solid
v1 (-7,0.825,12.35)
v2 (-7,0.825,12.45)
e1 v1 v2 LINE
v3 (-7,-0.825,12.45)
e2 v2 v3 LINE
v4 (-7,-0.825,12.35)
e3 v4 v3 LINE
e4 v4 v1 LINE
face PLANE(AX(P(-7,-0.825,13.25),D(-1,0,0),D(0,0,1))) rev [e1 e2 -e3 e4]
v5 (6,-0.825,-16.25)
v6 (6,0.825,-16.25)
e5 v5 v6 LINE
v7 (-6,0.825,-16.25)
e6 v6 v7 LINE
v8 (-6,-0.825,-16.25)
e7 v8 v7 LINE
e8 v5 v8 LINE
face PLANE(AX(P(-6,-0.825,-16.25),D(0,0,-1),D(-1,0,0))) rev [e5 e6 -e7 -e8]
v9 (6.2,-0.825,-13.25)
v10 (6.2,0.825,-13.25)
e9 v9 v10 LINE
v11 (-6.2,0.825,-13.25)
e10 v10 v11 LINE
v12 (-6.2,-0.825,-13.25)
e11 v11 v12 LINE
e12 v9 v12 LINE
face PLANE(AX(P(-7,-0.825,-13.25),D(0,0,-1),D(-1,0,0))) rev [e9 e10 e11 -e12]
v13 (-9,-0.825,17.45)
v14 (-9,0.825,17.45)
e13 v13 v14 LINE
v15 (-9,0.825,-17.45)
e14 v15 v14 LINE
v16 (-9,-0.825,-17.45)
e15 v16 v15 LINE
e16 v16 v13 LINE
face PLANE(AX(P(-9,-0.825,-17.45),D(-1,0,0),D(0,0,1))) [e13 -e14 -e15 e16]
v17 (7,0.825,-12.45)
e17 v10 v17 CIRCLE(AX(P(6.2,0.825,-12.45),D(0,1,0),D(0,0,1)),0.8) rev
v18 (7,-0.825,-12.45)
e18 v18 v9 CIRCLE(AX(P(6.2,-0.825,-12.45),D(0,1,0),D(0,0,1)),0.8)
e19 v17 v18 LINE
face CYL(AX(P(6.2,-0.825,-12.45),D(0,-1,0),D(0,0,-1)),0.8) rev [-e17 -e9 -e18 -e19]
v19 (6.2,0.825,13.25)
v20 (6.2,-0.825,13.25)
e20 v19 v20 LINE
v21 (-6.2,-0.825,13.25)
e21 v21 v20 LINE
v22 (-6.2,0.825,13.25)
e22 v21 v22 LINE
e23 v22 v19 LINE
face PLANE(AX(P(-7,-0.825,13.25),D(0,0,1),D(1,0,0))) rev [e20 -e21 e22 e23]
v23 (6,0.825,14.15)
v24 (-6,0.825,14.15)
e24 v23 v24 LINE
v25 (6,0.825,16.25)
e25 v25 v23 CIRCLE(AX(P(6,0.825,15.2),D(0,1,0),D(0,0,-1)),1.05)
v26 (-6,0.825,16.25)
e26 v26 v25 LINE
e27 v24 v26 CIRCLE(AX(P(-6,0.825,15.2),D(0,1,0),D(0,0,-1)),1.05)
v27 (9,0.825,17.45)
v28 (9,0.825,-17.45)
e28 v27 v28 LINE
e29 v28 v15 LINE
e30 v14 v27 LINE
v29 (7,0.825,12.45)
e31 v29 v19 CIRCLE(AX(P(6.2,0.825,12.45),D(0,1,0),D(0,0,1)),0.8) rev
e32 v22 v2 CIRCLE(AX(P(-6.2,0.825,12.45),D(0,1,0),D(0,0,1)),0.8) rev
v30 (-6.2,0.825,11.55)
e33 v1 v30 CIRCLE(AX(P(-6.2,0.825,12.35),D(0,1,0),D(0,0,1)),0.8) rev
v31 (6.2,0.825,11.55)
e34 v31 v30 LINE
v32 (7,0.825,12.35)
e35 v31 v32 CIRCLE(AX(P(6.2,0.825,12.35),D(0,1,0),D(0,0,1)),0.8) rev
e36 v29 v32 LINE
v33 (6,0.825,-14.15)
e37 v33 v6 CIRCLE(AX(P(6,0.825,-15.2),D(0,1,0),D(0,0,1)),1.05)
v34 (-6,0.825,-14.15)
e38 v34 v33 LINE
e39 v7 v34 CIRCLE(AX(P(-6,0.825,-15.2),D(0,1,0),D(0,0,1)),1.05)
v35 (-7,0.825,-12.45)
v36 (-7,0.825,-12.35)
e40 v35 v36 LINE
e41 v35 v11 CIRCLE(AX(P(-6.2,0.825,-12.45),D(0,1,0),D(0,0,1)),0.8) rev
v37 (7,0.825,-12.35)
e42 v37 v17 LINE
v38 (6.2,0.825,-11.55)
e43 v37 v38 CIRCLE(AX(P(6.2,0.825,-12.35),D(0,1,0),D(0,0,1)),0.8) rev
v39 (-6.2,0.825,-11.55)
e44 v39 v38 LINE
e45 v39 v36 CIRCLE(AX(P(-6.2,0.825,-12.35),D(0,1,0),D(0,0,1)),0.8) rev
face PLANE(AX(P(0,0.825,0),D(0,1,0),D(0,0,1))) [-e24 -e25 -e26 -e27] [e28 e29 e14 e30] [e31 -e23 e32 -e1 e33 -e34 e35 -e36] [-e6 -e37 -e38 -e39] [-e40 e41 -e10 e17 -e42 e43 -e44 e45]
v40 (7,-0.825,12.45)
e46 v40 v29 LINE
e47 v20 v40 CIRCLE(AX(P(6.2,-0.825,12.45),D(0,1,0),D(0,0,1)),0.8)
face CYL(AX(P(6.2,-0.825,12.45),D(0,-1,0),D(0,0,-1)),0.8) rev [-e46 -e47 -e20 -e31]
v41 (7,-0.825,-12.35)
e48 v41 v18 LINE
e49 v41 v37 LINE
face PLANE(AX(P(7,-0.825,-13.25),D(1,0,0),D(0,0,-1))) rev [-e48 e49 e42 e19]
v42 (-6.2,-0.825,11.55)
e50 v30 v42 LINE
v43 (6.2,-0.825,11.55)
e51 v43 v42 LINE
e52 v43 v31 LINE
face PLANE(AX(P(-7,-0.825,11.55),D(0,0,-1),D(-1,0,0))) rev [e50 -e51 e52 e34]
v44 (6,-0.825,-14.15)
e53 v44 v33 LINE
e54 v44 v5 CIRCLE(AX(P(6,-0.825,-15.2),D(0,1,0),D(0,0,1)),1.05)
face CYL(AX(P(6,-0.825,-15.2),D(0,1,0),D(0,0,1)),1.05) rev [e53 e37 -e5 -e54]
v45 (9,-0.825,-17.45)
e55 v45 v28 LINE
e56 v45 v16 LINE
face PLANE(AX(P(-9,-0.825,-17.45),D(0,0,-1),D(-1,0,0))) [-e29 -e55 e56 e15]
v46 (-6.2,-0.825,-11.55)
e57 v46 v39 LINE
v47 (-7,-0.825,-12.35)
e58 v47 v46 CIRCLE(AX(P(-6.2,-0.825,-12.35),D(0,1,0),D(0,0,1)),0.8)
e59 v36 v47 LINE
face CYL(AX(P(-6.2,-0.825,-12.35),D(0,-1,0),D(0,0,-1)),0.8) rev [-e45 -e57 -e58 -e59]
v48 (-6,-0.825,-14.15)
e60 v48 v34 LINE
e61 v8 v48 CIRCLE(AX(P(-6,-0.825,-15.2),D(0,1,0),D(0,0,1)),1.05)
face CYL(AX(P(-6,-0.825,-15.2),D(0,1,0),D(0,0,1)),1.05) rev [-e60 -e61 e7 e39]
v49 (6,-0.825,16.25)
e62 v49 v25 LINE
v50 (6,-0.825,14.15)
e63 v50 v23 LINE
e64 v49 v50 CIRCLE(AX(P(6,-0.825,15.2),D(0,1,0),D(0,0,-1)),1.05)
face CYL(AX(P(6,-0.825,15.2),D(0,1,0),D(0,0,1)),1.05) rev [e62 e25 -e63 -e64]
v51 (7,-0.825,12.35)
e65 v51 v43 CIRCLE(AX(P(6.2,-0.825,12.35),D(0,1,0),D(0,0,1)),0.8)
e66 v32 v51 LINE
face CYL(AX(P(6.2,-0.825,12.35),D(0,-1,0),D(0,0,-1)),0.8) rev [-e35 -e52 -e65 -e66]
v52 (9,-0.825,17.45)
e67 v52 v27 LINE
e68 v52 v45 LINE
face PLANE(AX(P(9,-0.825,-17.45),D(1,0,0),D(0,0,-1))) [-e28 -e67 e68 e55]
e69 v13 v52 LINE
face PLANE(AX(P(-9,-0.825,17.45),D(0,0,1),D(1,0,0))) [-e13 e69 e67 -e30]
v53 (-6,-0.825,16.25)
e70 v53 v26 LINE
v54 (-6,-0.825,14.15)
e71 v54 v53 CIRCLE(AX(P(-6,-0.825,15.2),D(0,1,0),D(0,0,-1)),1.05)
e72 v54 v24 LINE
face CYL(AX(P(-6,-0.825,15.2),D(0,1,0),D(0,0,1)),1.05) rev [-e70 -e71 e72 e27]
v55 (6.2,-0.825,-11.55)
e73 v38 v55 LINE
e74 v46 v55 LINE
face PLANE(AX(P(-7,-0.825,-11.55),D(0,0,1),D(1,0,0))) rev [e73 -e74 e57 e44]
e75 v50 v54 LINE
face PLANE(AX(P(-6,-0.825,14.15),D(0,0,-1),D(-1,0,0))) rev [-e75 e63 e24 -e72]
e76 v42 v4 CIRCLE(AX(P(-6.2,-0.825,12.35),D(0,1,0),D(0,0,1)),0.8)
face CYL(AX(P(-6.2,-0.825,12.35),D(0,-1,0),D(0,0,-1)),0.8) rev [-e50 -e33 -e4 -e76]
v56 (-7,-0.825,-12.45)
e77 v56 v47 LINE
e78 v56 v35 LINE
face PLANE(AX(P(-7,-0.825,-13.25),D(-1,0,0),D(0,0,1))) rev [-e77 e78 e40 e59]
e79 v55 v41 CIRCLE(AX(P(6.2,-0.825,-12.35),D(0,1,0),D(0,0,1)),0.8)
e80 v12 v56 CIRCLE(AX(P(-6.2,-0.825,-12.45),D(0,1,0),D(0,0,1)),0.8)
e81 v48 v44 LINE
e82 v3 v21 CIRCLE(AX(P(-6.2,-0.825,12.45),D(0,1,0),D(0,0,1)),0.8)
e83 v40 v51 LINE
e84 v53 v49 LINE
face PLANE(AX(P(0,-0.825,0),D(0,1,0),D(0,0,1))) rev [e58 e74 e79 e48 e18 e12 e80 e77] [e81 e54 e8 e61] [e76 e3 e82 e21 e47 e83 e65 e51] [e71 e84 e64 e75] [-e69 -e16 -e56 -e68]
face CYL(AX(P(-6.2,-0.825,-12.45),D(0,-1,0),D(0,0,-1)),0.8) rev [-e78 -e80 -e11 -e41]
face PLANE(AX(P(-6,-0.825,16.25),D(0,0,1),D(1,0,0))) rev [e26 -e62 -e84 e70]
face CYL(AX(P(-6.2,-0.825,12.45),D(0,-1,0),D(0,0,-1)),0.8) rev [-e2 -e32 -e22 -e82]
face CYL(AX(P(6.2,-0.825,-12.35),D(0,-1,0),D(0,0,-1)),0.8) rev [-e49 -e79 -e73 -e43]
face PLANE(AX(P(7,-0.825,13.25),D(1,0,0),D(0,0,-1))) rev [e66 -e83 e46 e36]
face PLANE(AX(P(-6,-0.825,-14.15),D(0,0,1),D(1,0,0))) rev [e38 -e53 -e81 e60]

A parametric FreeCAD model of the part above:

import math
import FreeCAD as App
import Part
import Sketcher
Q = App.Units.Quantity


def edges_at(feature, points):
    """Names of the edges that pass closest to the given points."""
    edges = feature.Shape.Edges
    near = lambda p: min(range(len(edges)), key=lambda i: edges[i].distToShape(Part.Vertex(*p))[0])
    return sorted({f"Edge{near(p) + 1}" for p in points})


def add_polygon(sketch, points):
    """Adds a closed chain of lines whose ends are joined by coincident constraints."""
    first, n = sketch.GeometryCount, len(points)
    for a, b in zip(points, points[1:] + points[:1]):
        sketch.addGeometry(Part.LineSegment(App.Vector(*a, 0), App.Vector(*b, 0)), False)
    for i in range(n):
        sketch.addConstraint(Sketcher.Constraint("Coincident", first + i, 2, first + (i + 1) % n, 1))

doc = App.newDocument("Part")
params = doc.addObject("Spreadsheet::Sheet", "Params")
for row, (alias, value) in enumerate([
    ("sketch1_width", "18 mm"),
    ("sketch1_width2", "12 mm"),
    ("sketch1_width3", "14 mm"),
    ("sketch1_radius", "1.05 mm"),
    ("sketch1_height", "34.9 mm"),
    ("pad1_length", "1.65 mm"),
    ("fillet_radius", "0.8 mm"),
], start=1):
    params.set(f"A{row}", alias)
    params.set(f"B{row}", "=" + value)
    params.setAlias(f"B{row}", alias)

body = doc.addObject("PartDesign::Body", "Body")

sketch1 = body.newObject("Sketcher::SketchObject", "Sketch")
sketch1.AttachmentSupport = (doc.getObject("XZ_Plane"), [""])
sketch1.MapMode = "FlatFace"
add_polygon(sketch1, [(-9, -17.4), (-9, 17.4), (9, 17.4), (9, -17.4)])
sketch1.addGeometry(Part.LineSegment(App.Vector(6, 16.2, 0), App.Vector(-6, 16.2, 0)), False)
sketch1.addGeometry(Part.ArcOfCircle(Part.Circle(App.Vector(-6, 15.2, 0), App.Vector(0, 0, 1), 1.1), math.radians(90), math.radians(270)), False)
sketch1.addGeometry(Part.LineSegment(App.Vector(-6, 14.2, 0), App.Vector(6, 14.2, 0)), False)
sketch1.addGeometry(Part.ArcOfCircle(Part.Circle(App.Vector(6, 15.2, 0), App.Vector(0, 0, 1), 1.1), math.radians(-90), math.radians(90)), False)
add_polygon(sketch1, [(7, 13.2), (-7, 13.2), (-7, 11.6), (7, 11.6)])
add_polygon(sketch1, [(7, -11.6), (-7, -11.6), (-7, -13.2), (7, -13.2)])
sketch1.addGeometry(Part.ArcOfCircle(Part.Circle(App.Vector(-6, -15.2, 0), App.Vector(0, 0, 1), 1.1), math.radians(90), math.radians(270)), False)
sketch1.addGeometry(Part.LineSegment(App.Vector(-6, -16.2, 0), App.Vector(6, -16.2, 0)), False)
sketch1.addGeometry(Part.ArcOfCircle(Part.Circle(App.Vector(6, -15.2, 0), App.Vector(0, 0, 1), 1.1), math.radians(-90), math.radians(90)), False)
sketch1.addGeometry(Part.LineSegment(App.Vector(6, -14.2, 0), App.Vector(-6, -14.2, 0)), False)
sketch1.addConstraint([
    Sketcher.Constraint("Tangent", 4, 2, 5, 1),
    Sketcher.Constraint("Tangent", 5, 2, 6, 1),
    Sketcher.Constraint("Tangent", 6, 2, 7, 1),
    Sketcher.Constraint("Tangent", 7, 2, 4, 1),
    Sketcher.Constraint("Tangent", 16, 2, 17, 1),
    Sketcher.Constraint("Tangent", 17, 2, 18, 1),
    Sketcher.Constraint("Tangent", 18, 2, 19, 1),
    Sketcher.Constraint("Tangent", 19, 2, 16, 1),
    Sketcher.Constraint("Vertical", 0),
    Sketcher.Constraint("Horizontal", 1),
    Sketcher.Constraint("Vertical", 2),
    Sketcher.Constraint("Horizontal", 3),
    Sketcher.Constraint("Horizontal", 4),
    Sketcher.Constraint("Horizontal", 6),
    Sketcher.Constraint("Horizontal", 8),
    Sketcher.Constraint("Vertical", 9),
    Sketcher.Constraint("Horizontal", 10),
    Sketcher.Constraint("Vertical", 11),
    Sketcher.Constraint("Horizontal", 12),
    Sketcher.Constraint("Vertical", 13),
    Sketcher.Constraint("Horizontal", 14),
    Sketcher.Constraint("Vertical", 15),
    Sketcher.Constraint("Horizontal", 17),
    Sketcher.Constraint("Horizontal", 19),
    Sketcher.Constraint("Equal", 7, 16),
    Sketcher.Constraint("Symmetric", 7, 3, 16, 3, -1, 1),
    Sketcher.Constraint("Symmetric", 0, 2, 2, 2, -1, 1),
    Sketcher.Constraint("Symmetric", 10, 2, 12, 2, -1, 1),
    Sketcher.Constraint("Symmetric", 8, 2, 14, 2, -1, 1),
    Sketcher.Constraint("Vertical", 5, 3, 16, 3),
    Sketcher.Constraint("Vertical", 7, 3, 18, 3),
    Sketcher.Constraint("Vertical", 9, 2, 12, 2),
    Sketcher.Constraint("DistanceX", 1, 1, 1, 2, Q("18 mm")),
    Sketcher.Constraint("DistanceX", 4, 2, 4, 1, Q("12 mm")),
    Sketcher.Constraint("DistanceX", 8, 2, 8, 1, Q("14 mm")),
    Sketcher.Constraint("Radius", 5, Q("1.05 mm")),
    Sketcher.Constraint("DistanceY", 0, 1, 0, 2, Q("34.9 mm")),
    Sketcher.Constraint("DistanceY", 9, 2, 9, 1, Q("1.7 mm")),
    Sketcher.Constraint("DistanceY", 8, 2, 4, 2, Q("3 mm")),
    Sketcher.Constraint("DistanceY", -1, 1, 5, 3, Q("15.2 mm")),
])
sketch1.setExpression("Constraints[44]", "Params.sketch1_width")
sketch1.setExpression("Constraints[45]", "Params.sketch1_width2")
sketch1.setExpression("Constraints[46]", "Params.sketch1_width3")
sketch1.setExpression("Constraints[47]", "Params.sketch1_radius")
sketch1.setExpression("Constraints[48]", "Params.sketch1_height")
pad1 = body.newObject("PartDesign::Pad", "Pad")
pad1.Profile = sketch1
pad1.setExpression("Length", "Params.pad1_length")
pad1.Midplane = True
doc.recompute()

fillet = body.newObject("PartDesign::Fillet", "Fillet")
fillet.Base = (pad1, edges_at(pad1, [
    (-7, 0, -11.55),
    (-7, 0, -13.25),
    (7, 0, -13.25),
    (7, 0, -11.55),
    (7, 0, 13.25),
    (-7, 0, 13.25),
    (-7, 0, 11.55),
    (7, 0, 11.55),
]))
fillet.setExpression("Radius", "Params.fillet_radius")

doc.recompute()
